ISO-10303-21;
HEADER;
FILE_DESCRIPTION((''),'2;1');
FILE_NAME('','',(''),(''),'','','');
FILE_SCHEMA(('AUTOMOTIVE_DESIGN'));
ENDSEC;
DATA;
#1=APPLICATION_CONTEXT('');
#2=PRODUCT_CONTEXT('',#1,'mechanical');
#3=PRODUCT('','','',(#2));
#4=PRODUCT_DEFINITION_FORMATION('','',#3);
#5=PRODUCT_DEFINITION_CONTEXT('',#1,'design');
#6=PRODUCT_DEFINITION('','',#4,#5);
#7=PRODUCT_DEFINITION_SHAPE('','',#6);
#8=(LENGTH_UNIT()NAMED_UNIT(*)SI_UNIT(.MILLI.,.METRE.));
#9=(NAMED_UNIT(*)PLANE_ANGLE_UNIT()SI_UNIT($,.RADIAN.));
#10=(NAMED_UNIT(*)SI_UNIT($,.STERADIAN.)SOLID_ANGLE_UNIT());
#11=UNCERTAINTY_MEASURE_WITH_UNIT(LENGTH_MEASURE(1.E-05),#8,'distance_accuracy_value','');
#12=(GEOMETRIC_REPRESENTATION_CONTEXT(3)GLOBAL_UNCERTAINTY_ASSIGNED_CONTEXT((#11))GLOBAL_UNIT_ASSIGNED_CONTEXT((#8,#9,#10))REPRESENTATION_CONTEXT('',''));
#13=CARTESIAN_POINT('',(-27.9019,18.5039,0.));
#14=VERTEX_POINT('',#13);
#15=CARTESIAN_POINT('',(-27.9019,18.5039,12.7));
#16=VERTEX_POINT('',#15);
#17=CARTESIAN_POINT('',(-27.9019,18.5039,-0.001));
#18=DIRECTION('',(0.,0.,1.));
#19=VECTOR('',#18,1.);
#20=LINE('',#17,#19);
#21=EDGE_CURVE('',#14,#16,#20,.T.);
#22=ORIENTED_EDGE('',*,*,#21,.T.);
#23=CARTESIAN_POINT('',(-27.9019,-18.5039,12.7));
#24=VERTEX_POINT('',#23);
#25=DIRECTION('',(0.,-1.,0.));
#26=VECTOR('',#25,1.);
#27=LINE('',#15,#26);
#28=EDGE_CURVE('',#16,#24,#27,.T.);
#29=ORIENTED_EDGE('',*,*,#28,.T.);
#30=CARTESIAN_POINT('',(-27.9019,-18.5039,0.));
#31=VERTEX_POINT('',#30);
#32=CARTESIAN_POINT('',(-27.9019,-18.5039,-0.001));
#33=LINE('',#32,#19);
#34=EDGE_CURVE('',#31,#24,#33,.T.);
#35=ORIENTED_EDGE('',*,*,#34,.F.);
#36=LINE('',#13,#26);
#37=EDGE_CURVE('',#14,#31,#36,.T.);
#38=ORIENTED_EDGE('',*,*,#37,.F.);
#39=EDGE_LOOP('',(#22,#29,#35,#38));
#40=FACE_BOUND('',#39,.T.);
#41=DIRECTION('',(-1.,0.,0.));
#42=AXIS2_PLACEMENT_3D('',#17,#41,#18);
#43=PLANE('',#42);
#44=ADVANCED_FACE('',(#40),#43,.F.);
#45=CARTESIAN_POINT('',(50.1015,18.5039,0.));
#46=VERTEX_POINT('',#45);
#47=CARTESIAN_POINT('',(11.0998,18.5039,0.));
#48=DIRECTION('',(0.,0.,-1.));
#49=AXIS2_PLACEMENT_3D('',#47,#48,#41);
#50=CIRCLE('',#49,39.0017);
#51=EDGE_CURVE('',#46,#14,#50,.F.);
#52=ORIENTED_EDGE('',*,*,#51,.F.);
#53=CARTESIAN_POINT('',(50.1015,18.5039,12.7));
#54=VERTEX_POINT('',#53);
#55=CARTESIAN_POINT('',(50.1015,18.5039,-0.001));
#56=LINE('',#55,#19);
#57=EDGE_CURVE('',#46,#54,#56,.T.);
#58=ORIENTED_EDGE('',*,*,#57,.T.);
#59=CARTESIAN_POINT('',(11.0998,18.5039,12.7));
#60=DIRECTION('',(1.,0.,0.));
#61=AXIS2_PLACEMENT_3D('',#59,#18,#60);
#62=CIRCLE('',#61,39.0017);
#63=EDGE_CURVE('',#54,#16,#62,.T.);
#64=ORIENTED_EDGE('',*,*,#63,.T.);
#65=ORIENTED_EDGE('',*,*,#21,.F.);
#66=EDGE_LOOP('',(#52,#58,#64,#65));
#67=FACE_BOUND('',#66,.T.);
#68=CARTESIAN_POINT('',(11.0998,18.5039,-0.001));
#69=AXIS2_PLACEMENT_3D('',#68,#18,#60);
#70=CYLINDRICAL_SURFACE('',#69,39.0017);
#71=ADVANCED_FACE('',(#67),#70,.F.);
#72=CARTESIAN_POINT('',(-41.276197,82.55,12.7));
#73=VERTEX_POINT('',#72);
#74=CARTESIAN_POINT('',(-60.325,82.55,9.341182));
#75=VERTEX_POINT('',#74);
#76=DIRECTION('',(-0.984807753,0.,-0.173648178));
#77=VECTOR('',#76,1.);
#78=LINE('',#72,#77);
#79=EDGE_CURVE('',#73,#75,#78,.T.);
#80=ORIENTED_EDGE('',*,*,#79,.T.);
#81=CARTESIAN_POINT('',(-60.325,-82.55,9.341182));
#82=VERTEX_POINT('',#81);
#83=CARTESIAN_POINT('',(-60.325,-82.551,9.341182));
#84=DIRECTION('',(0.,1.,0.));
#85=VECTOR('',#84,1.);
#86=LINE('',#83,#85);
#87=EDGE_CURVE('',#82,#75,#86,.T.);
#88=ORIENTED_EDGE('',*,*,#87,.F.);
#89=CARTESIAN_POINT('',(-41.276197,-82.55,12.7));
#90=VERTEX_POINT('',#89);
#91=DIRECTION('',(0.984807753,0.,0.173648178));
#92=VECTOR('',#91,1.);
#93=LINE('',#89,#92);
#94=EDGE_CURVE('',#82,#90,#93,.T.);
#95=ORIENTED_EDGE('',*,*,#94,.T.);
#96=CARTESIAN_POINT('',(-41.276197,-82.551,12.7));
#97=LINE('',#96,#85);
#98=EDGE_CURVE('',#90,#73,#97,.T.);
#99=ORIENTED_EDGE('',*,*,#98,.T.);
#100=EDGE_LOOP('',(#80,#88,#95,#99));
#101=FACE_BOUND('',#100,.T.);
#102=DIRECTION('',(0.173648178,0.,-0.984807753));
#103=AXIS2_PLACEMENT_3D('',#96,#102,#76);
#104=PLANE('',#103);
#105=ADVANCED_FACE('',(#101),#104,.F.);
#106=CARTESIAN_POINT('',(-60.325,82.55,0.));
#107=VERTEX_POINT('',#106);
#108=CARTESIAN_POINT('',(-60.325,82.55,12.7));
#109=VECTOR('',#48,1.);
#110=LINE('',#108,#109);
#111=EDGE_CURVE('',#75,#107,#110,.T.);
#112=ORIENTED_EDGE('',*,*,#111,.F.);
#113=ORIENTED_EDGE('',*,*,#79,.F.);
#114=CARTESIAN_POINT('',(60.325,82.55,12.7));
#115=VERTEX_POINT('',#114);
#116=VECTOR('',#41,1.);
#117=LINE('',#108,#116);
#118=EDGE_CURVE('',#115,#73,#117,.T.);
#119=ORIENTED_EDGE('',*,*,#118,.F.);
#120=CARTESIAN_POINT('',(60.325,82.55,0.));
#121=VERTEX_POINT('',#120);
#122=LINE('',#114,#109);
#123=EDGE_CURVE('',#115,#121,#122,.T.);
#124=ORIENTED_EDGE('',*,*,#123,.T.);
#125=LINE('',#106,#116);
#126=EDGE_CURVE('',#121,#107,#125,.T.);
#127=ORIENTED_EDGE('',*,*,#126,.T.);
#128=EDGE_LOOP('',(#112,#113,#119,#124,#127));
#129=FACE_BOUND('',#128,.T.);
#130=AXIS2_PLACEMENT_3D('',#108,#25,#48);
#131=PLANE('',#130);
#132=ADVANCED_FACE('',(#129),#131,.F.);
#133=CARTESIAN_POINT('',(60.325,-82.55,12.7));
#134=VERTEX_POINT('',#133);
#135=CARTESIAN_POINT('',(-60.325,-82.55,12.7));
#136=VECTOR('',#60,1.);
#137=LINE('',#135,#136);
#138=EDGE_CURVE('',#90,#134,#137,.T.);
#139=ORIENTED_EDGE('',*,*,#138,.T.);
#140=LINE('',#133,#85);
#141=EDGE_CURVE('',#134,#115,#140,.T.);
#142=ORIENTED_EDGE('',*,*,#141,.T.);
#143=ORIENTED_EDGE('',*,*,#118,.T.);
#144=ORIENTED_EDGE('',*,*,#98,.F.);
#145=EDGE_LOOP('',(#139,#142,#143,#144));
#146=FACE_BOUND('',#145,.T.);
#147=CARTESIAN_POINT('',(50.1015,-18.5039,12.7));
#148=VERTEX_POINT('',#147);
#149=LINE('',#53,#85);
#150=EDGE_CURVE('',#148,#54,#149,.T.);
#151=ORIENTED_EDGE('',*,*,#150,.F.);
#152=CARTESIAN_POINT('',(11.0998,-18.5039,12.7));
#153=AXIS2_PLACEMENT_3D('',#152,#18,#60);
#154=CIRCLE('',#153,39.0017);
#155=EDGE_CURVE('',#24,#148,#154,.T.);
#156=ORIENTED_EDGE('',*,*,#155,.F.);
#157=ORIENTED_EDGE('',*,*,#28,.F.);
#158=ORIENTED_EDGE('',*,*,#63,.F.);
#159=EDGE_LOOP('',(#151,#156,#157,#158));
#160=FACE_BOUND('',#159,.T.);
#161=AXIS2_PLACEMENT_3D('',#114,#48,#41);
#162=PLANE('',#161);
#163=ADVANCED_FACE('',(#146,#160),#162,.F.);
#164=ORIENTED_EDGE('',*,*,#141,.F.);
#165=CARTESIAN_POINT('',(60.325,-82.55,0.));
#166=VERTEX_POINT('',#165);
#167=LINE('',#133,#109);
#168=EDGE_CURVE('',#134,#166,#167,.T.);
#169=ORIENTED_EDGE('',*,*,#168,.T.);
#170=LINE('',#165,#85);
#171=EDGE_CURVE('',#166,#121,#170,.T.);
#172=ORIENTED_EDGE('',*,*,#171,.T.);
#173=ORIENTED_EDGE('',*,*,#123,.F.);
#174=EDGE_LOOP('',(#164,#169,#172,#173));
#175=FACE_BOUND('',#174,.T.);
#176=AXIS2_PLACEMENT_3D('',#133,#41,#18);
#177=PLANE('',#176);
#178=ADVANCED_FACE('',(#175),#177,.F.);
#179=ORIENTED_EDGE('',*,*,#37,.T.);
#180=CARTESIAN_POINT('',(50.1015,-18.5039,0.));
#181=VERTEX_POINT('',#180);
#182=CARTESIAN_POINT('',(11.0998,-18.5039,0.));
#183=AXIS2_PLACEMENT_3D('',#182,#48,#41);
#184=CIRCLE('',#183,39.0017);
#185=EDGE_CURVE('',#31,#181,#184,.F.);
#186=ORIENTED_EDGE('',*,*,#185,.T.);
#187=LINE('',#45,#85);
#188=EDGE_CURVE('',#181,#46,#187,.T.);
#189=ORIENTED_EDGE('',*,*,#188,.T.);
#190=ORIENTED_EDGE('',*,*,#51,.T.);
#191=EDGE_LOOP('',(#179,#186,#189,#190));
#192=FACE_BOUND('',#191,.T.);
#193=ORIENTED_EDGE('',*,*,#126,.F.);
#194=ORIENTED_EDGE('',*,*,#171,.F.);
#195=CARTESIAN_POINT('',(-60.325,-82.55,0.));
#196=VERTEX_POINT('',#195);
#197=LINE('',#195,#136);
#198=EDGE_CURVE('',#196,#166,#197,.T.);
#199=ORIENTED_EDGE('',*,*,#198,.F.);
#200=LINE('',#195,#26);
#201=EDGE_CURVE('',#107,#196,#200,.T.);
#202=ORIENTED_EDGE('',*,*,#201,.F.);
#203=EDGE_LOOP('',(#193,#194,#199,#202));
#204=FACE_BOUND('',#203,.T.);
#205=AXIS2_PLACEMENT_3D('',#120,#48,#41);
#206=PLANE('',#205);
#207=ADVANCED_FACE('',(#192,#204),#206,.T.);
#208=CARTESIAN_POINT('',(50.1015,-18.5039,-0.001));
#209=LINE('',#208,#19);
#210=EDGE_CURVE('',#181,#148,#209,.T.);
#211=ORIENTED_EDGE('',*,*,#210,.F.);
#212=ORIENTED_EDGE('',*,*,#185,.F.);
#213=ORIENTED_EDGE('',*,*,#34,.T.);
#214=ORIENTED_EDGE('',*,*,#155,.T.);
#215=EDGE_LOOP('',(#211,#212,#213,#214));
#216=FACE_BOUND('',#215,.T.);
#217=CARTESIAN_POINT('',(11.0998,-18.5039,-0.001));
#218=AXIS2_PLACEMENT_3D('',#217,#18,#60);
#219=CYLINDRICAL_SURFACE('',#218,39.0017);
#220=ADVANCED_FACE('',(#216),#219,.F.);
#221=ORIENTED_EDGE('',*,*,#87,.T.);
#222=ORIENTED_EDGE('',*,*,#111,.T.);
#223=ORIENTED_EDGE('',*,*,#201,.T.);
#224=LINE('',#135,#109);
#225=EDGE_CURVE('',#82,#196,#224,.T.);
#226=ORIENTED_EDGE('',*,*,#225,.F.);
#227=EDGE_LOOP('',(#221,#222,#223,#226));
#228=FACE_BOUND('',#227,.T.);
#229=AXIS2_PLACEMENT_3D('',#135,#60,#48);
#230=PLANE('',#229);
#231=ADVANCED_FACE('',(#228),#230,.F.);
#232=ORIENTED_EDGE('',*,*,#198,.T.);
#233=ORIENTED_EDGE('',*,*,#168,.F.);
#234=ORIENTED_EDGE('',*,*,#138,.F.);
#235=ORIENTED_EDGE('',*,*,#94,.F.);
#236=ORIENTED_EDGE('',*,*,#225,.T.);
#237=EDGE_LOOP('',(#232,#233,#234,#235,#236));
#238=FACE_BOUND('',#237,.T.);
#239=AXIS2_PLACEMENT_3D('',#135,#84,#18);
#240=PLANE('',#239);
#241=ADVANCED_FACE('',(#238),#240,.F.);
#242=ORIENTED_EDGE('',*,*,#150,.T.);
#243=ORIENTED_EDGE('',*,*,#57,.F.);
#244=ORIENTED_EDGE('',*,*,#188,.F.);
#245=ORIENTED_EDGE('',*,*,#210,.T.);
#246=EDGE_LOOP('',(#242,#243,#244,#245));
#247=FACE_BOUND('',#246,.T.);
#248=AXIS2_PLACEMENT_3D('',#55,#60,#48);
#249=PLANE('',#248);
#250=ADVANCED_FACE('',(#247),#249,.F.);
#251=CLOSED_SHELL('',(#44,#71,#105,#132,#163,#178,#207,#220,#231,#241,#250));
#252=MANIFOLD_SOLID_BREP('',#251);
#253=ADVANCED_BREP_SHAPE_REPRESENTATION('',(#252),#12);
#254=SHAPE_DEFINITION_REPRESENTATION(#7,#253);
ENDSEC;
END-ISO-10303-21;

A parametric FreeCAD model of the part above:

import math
import FreeCAD as App
import Part
import Sketcher
Q = App.Units.Quantity

doc = App.newDocument("Part")
body = doc.addObject("PartDesign::Body", "Body")

sketch1 = body.newObject("Sketcher::SketchObject", "Sketch")
sketch1.AttachmentSupport = (doc.getObject("XY_Plane"), [""])
sketch1.MapMode = "FlatFace"
sketch1.addGeometry([
    Part.LineSegment(App.Vector(-60, 83, 0), App.Vector(-60, -83, 0)),
    Part.LineSegment(App.Vector(-60, -83, 0), App.Vector(60, -83, 0)),
    Part.LineSegment(App.Vector(60, -83, 0), App.Vector(60, 83, 0)),
    Part.LineSegment(App.Vector(60, 83, 0), App.Vector(-60, 83, 0)),
], False)
sketch1.addConstraint([
    Sketcher.Constraint("Coincident", 0, 2, 1, 1),
    Sketcher.Constraint("Coincident", 1, 2, 2, 1),
    Sketcher.Constraint("Coincident", 2, 2, 3, 1),
    Sketcher.Constraint("Coincident", 3, 2, 0, 1),
    Sketcher.Constraint("Vertical", 0),
    Sketcher.Constraint("Horizontal", 1),
    Sketcher.Constraint("Vertical", 2),
    Sketcher.Constraint("Horizontal", 3),
    Sketcher.Constraint("Symmetric", 0, 2, 2, 2, -1, 1),
    Sketcher.Constraint("DistanceY", 0, 2, 0, 1, Q("6.5 in")),
    Sketcher.Constraint("DistanceX", 1, 1, 1, 2, Q("4.75 in")),
])
pad1 = body.newObject("PartDesign::Pad", "Pad")
pad1.Profile = sketch1
pad1.Length = Q("0.5 in")

sketch2 = body.newObject("Sketcher::SketchObject", "Sketch001")
sketch2.AttachmentSupport = (doc.getObject("XY_Plane"), [""])
sketch2.MapMode = "FlatFace"
sketch2.AttachmentOffset = App.Placement(App.Vector(0, 0, 0.5 * 25.4), App.Rotation())
sketch2.addGeometry([
    Part.LineSegment(App.Vector(50, -19, 0), App.Vector(50, 19, 0)),
    Part.ArcOfCircle(Part.Circle(App.Vector(11, 19, 0), App.Vector(0, 0, 1), 39), math.radians(0), math.radians(180)),
    Part.LineSegment(App.Vector(-28, 19, 0), App.Vector(-28, -19, 0)),
    Part.ArcOfCircle(Part.Circle(App.Vector(11, -19, 0), App.Vector(0, 0, 1), 39), math.radians(180), math.radians(360)),
], False)
sketch2.addConstraint([
    Sketcher.Constraint("Tangent", 0, 2, 1, 1),
    Sketcher.Constraint("Tangent", 1, 2, 2, 1),
    Sketcher.Constraint("Tangent", 2, 2, 3, 1),
    Sketcher.Constraint("Tangent", 3, 2, 0, 1),
    Sketcher.Constraint("Vertical", 0),
    Sketcher.Constraint("Vertical", 2),
    Sketcher.Constraint("Radius", 1, Q("1.5355 in")),
    Sketcher.Constraint("DistanceY", 0, 1, 0, 2, Q("1.457 in")),
    Sketcher.Constraint("DistanceX", -1, 1, 1, 3, Q("0.437 in")),
    Sketcher.Constraint("DistanceY", -1, 1, 1, 3, Q("0.7285 in")),
])
pocket1 = body.newObject("PartDesign::Pocket", "Pocket")
pocket1.Profile = sketch2
pocket1.Type = "UpToFirst"

sketch3 = body.newObject("Sketcher::SketchObject", "Sketch002")
sketch3.AttachmentSupport = (doc.getObject("XZ_Plane"), [""])
sketch3.MapMode = "FlatFace"
sketch3.AttachmentOffset = App.Placement(App.Vector(0, 0, -3.25 * 25.4), App.Rotation())
sketch3.addGeometry([
    Part.LineSegment(App.Vector(-41.3, 12.7, 0), App.Vector(-60.3, 9.3, 0)),
    Part.LineSegment(App.Vector(-60.3, 9.3, 0), App.Vector(-60.3, 12.7, 0)),
    Part.LineSegment(App.Vector(-60.3, 12.7, 0), App.Vector(-41.3, 12.7, 0)),
], False)
sketch3.addConstraint([
    Sketcher.Constraint("Coincident", 0, 2, 1, 1),
    Sketcher.Constraint("Coincident", 1, 2, 2, 1),
    Sketcher.Constraint("Coincident", 2, 2, 0, 1),
    Sketcher.Constraint("Vertical", 1),
    Sketcher.Constraint("Horizontal", 2),
    Sketcher.Constraint("Angle", 0, Q("-170 deg")),
    Sketcher.Constraint("DistanceY", -1, 1, 1, 2, Q("0.5 in")),
    Sketcher.Constraint("DistanceX", 0, 2, -1, 1, Q("2.375 in")),
    Sketcher.Constraint("Distance", 0, Q("19.342661 mm")),
])
pocket2 = body.newObject("PartDesign::Pocket", "Pocket001")
pocket2.Profile = sketch3
pocket2.Type = "UpToFirst"
pocket2.Reversed = True

doc.recompute()
